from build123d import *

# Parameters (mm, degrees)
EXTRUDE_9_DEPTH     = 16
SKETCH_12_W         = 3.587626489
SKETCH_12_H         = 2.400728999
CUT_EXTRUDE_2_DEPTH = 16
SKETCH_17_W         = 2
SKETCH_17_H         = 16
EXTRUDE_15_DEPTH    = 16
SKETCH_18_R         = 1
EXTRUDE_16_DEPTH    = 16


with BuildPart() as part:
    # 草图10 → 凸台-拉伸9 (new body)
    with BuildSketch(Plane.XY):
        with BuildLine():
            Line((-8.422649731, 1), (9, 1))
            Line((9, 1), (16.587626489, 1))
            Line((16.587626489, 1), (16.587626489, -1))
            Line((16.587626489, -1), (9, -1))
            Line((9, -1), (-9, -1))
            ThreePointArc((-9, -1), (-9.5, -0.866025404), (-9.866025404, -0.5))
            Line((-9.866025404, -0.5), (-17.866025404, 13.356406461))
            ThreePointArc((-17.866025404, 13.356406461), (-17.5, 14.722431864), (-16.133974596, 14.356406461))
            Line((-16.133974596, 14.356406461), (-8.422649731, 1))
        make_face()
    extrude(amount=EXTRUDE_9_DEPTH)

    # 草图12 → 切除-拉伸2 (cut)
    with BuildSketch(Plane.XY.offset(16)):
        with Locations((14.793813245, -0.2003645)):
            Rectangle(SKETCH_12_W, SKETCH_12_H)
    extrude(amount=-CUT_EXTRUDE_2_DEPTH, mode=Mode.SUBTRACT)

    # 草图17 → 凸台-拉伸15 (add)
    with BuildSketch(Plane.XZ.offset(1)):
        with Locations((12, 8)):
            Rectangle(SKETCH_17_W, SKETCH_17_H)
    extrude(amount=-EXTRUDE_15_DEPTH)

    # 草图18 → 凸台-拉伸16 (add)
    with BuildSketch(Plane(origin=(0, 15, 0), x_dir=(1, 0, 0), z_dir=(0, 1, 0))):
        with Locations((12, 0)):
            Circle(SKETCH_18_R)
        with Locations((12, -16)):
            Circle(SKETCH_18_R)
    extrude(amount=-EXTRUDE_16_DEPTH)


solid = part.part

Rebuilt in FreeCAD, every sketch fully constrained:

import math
import FreeCAD as App
import Part
import Sketcher
from FreeCAD import Vector
Q = App.Units.Quantity

doc = App.newDocument("Part")
body = doc.addObject("PartDesign::Body", "Body")

sketch1 = body.newObject("Sketcher::SketchObject", "Sketch")
sketch1.AttachmentSupport = (doc.getObject("XY_Plane"), [""])
sketch1.MapMode = "FlatFace"
sketch1.addGeometry(Part.LineSegment(Vector(16.587626, 1, 0), Vector(-8.42265, 1, 0)), False)
sketch1.addGeometry(Part.LineSegment(Vector(-8.42265, 1, 0), Vector(-16.133975, 14.356406, 0)), False)
sketch1.addGeometry(Part.ArcOfCircle(Part.Circle(Vector(-17, 13.856406, 0), Vector(0, 0, 1), 1), math.radians(30), math.radians(210)), False)
sketch1.addGeometry(Part.LineSegment(Vector(-17.866025, 13.356406, 0), Vector(-9.866025, -0.5, 0)), False)
sketch1.addGeometry(Part.ArcOfCircle(Part.Circle(Vector(-9, 0, 0), Vector(0, 0, 1), 1), math.radians(-150), math.radians(-90)), False)
sketch1.addGeometry(Part.LineSegment(Vector(-9, -1, 0), Vector(16.587626, -1, 0)), False)
sketch1.addGeometry(Part.LineSegment(Vector(16.587626, -1, 0), Vector(16.587626, 1, 0)), False)
sketch1.addConstraint(Sketcher.Constraint("Coincident", 0, 2, 1, 1))
sketch1.addConstraint(Sketcher.Constraint("Tangent", 1, 2, 2, 1))
sketch1.addConstraint(Sketcher.Constraint("Tangent", 2, 2, 3, 1))
sketch1.addConstraint(Sketcher.Constraint("Tangent", 3, 2, 4, 1))
sketch1.addConstraint(Sketcher.Constraint("Tangent", 4, 2, 5, 1))
sketch1.addConstraint(Sketcher.Constraint("Coincident", 5, 2, 6, 1))
sketch1.addConstraint(Sketcher.Constraint("Coincident", 6, 2, 0, 1))
sketch1.addConstraint(Sketcher.Constraint("Horizontal", 0))
sketch1.addConstraint(Sketcher.Constraint("Horizontal", 5))
sketch1.addConstraint(Sketcher.Constraint("Vertical", 6))
sketch1.addConstraint(Sketcher.Constraint("Equal", 2, 4))
sketch1.addConstraint(Sketcher.Constraint("PointOnObject", 4, 3, -1))
sketch1.addConstraint(Sketcher.Constraint("Parallel", 1, 3))
sketch1.addConstraint(Sketcher.Constraint("Radius", 2, Q("1 mm")))
sketch1.addConstraint(Sketcher.Constraint("DistanceY", 6, 1, 6, 2, Q("2 mm")))
sketch1.addConstraint(Sketcher.Constraint("Angle", 1, Q("120 deg")))
sketch1.addConstraint(Sketcher.Constraint("Distance", 3, Q("16 mm")))
sketch1.addConstraint(Sketcher.Constraint("DistanceX", 2, 3, -1, 1, Q("17 mm")))
sketch1.addConstraint(Sketcher.Constraint("DistanceX", 1, 2, 5, 2, Q("32.721601 mm")))
pad1 = body.newObject("PartDesign::Pad", "Pad")
pad1.Profile = sketch1
pad1.Length = 16

sketch2 = body.newObject("Sketcher::SketchObject", "Sketch001")
sketch2.AttachmentSupport = (doc.getObject("XY_Plane"), [""])
sketch2.MapMode = "FlatFace"
sketch2.AttachmentOffset = App.Placement(Vector(0, 0, 16), App.Rotation())
sketch2.addGeometry(Part.LineSegment(Vector(13, 1, 0), Vector(13, -1.400729, 0)), False)
sketch2.addGeometry(Part.LineSegment(Vector(13, -1.400729, 0), Vector(16.587626, -1.400729, 0)), False)
sketch2.addGeometry(Part.LineSegment(Vector(16.587626, -1.400729, 0), Vector(16.587626, 1, 0)), False)
sketch2.addGeometry(Part.LineSegment(Vector(16.587626, 1, 0), Vector(13, 1, 0)), False)
sketch2.addConstraint(Sketcher.Constraint("Coincident", 0, 2, 1, 1))
sketch2.addConstraint(Sketcher.Constraint("Coincident", 1, 2, 2, 1))
sketch2.addConstraint(Sketcher.Constraint("Coincident", 2, 2, 3, 1))
sketch2.addConstraint(Sketcher.Constraint("Coincident", 3, 2, 0, 1))
sketch2.addConstraint(Sketcher.Constraint("Vertical", 0))
sketch2.addConstraint(Sketcher.Constraint("Horizontal", 1))
sketch2.addConstraint(Sketcher.Constraint("Vertical", 2))
sketch2.addConstraint(Sketcher.Constraint("Horizontal", 3))
sketch2.addConstraint(Sketcher.Constraint("DistanceX", -1, 1, 0, 2, Q("13 mm")))
sketch2.addConstraint(Sketcher.Constraint("DistanceY", -1, 1, 2, 2, Q("1 mm")))
sketch2.addConstraint(Sketcher.Constraint("DistanceY", 0, 2, 0, 1, Q("2.400729 mm")))
sketch2.addConstraint(Sketcher.Constraint("DistanceX", 1, 1, 1, 2, Q("3.587626 mm")))
pocket1 = body.newObject("PartDesign::Pocket", "Pocket")
pocket1.Profile = sketch2
pocket1.Length = 16

sketch3 = body.newObject("Sketcher::SketchObject", "Sketch002")
sketch3.AttachmentSupport = (doc.getObject("XZ_Plane"), [""])
sketch3.MapMode = "FlatFace"
sketch3.AttachmentOffset = App.Placement(Vector(0, 0, 1), App.Rotation())
sketch3.addGeometry(Part.LineSegment(Vector(11, 16, 0), Vector(11, 0, 0)), False)
sketch3.addGeometry(Part.LineSegment(Vector(11, 0, 0), Vector(13, 0, 0)), False)
sketch3.addGeometry(Part.LineSegment(Vector(13, 0, 0), Vector(13, 16, 0)), False)
sketch3.addGeometry(Part.LineSegment(Vector(13, 16, 0), Vector(11, 16, 0)), False)
sketch3.addConstraint(Sketcher.Constraint("Coincident", 0, 2, 1, 1))
sketch3.addConstraint(Sketcher.Constraint("Coincident", 1, 2, 2, 1))
sketch3.addConstraint(Sketcher.Constraint("Coincident", 2, 2, 3, 1))
sketch3.addConstraint(Sketcher.Constraint("Coincident", 3, 2, 0, 1))
sketch3.addConstraint(Sketcher.Constraint("Vertical", 0))
sketch3.addConstraint(Sketcher.Constraint("Horizontal", 1))
sketch3.addConstraint(Sketcher.Constraint("Vertical", 2))
sketch3.addConstraint(Sketcher.Constraint("Horizontal", 3))
sketch3.addConstraint(Sketcher.Constraint("PointOnObject", 0, 2, -1))
sketch3.addConstraint(Sketcher.Constraint("DistanceX", 1, 1, 1, 2, Q("2 mm")))
sketch3.addConstraint(Sketcher.Constraint("DistanceY", 0, 2, 0, 1, Q("16 mm")))
sketch3.addConstraint(Sketcher.Constraint("DistanceX", -1, 1, 0, 2, Q("11 mm")))
pad2 = body.newObject("PartDesign::Pad", "Pad001")
pad2.Profile = sketch3
pad2.Length = 16
pad2.Reversed = True

sketch4 = body.newObject("Sketcher::SketchObject", "Sketch003")
sketch4.AttachmentSupport = (doc.getObject("XZ_Plane"), [""])
sketch4.MapMode = "FlatFace"
sketch4.AttachmentOffset = App.Placement(Vector(0, 0, -15), App.Rotation())
sketch4.addGeometry(Part.Circle(Vector(12, 0, 0), Vector(0, 0, 1), 1), False)
sketch4.addGeometry(Part.Circle(Vector(12, 16, 0), Vector(0, 0, 1), 1), False)
sketch4.addConstraint(Sketcher.Constraint("Equal", 0, 1))
sketch4.addConstraint(Sketcher.Constraint("PointOnObject", 0, 3, -1))
sketch4.addConstraint(Sketcher.Constraint("Vertical", 0, 3, 1, 3))
sketch4.addConstraint(Sketcher.Constraint("Diameter", 0, Q("2 mm")))
sketch4.addConstraint(Sketcher.Constraint("DistanceX", -1, 1, 0, 3, Q("12 mm")))
sketch4.addConstraint(Sketcher.Constraint("DistanceY", -1, 1, 1, 3, Q("16 mm")))
pad3 = body.newObject("PartDesign::Pad", "Pad002")
pad3.Profile = sketch4
pad3.Length = 16

doc.recompute()
